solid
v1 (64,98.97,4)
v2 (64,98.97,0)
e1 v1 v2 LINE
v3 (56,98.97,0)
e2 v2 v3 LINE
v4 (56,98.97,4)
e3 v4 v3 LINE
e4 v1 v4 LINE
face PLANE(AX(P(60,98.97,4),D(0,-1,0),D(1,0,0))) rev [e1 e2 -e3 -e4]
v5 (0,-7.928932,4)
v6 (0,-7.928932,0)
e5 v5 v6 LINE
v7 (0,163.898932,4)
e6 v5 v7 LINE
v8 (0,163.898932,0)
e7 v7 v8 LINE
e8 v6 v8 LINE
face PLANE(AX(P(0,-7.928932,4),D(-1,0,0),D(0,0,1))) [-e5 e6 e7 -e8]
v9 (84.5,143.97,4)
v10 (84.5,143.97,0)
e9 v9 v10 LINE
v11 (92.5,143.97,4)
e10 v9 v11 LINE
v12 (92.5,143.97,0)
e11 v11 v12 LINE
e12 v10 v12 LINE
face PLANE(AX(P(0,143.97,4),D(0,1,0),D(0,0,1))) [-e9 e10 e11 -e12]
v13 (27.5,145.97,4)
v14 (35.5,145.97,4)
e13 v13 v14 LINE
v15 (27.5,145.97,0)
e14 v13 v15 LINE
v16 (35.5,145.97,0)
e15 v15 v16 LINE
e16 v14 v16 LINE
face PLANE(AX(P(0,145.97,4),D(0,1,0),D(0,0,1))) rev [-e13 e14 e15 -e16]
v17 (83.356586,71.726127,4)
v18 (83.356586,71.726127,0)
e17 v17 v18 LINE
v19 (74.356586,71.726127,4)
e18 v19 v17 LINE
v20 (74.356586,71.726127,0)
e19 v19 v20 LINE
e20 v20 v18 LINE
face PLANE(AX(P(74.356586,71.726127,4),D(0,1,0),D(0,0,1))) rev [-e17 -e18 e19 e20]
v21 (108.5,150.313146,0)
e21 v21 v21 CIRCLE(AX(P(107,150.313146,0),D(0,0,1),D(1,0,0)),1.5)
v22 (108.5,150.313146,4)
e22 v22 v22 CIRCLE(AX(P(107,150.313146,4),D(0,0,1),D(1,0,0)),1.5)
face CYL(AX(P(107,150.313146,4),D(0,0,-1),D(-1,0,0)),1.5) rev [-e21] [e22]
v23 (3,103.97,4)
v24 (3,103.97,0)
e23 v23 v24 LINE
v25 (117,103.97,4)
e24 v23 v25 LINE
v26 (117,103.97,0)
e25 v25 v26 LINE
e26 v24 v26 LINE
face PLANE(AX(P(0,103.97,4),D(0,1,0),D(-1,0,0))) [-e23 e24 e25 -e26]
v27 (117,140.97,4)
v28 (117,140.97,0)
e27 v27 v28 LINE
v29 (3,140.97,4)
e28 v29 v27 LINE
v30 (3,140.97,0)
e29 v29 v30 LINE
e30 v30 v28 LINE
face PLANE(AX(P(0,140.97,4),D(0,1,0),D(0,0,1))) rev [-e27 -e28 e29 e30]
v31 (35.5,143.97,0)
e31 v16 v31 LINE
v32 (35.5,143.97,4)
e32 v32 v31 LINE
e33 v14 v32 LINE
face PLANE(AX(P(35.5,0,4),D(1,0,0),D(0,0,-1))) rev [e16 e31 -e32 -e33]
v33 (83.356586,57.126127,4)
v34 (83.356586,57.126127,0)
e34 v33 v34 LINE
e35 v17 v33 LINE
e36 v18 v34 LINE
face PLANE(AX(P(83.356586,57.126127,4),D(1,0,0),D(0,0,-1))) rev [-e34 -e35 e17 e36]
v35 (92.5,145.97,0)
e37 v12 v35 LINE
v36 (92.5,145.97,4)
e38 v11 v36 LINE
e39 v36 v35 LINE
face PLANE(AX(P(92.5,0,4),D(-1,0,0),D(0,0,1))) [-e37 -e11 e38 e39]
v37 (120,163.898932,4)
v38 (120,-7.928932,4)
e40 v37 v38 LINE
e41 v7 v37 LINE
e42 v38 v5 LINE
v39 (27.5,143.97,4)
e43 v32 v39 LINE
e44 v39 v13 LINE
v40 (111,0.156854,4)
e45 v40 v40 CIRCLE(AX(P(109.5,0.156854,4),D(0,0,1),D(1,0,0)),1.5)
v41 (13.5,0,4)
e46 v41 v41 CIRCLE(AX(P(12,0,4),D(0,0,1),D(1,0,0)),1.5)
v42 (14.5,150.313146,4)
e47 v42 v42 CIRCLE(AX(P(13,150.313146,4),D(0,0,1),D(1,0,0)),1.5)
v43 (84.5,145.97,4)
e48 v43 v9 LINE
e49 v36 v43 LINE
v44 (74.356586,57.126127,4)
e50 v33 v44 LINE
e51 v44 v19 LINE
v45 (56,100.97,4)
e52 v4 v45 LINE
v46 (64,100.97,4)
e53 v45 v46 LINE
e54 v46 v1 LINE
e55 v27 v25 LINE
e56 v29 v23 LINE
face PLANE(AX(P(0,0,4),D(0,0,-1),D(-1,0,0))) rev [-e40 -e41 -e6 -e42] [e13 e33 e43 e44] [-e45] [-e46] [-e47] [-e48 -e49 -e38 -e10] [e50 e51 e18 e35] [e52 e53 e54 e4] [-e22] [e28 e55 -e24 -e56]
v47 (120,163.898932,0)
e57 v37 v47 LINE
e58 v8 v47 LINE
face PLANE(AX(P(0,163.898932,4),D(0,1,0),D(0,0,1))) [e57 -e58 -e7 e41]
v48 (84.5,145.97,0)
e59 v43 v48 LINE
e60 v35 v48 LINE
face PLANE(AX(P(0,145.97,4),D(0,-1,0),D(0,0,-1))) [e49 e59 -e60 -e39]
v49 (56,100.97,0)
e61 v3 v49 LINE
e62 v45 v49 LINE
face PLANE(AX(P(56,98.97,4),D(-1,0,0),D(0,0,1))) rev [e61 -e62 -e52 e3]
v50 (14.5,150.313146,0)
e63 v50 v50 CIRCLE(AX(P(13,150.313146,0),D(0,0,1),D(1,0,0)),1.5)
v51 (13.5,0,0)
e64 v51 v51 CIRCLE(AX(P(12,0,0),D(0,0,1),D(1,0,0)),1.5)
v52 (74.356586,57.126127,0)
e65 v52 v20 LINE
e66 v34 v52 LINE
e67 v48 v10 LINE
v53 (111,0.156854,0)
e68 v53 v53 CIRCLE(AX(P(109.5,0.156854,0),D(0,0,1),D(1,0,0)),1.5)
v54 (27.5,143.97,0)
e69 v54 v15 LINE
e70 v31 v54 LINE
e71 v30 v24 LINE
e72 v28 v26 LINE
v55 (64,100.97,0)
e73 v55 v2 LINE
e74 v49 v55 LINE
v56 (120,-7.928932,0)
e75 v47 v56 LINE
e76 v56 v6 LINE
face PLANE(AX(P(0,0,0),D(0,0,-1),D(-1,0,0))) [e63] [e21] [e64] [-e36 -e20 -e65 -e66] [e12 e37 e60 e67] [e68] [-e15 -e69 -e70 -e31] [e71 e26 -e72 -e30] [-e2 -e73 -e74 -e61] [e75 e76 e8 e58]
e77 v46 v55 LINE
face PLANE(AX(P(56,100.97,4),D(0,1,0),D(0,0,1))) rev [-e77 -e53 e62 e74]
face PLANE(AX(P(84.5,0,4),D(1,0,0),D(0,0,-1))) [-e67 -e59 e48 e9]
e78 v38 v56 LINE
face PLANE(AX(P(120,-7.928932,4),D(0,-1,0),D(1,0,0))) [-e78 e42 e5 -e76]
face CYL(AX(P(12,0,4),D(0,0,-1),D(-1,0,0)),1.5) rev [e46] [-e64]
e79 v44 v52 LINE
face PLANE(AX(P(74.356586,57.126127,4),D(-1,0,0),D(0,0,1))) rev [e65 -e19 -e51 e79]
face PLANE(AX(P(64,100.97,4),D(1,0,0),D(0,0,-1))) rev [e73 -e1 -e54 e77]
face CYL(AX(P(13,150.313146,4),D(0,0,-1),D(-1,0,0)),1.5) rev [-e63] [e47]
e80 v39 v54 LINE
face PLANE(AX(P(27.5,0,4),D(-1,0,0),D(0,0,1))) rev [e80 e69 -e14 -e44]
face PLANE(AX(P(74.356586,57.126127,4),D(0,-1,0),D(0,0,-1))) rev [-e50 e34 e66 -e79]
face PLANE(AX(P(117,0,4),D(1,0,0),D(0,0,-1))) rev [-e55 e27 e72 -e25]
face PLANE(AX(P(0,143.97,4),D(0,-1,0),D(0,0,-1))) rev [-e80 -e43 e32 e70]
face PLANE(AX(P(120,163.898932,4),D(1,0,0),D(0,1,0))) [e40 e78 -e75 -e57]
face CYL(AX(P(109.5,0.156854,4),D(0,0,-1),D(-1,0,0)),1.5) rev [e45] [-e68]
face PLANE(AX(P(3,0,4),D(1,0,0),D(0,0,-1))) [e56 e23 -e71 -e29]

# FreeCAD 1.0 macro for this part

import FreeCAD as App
import Part
import Sketcher
from FreeCAD import Vector


def add_polygon(sketch, points):
    """Adds a closed chain of lines whose ends are joined by coincident constraints."""
    first, n = sketch.GeometryCount, len(points)
    for a, b in zip(points, points[1:] + points[:1]):
        sketch.addGeometry(Part.LineSegment(App.Vector(*a, 0), App.Vector(*b, 0)), False)
    for i in range(n):
        sketch.addConstraint(Sketcher.Constraint("Coincident", first + i, 2, first + (i + 1) % n, 1))

doc = App.newDocument("Part")
body = doc.addObject("PartDesign::Body", "Body")

# Sketch on XY plane
sketch1 = body.newObject("Sketcher::SketchObject", "Sketch")
sketch1.AttachmentSupport = (doc.getObject("XY_Plane"), [""])
sketch1.MapMode = "FlatFace"
add_polygon(sketch1, [(0, 163.9), (0, -7.9), (120, -7.9), (120, 163.9)])  # lines 0-3
sketch1.addGeometry(Part.Circle(Vector(12, 0, 0), Vector(0, 0, 1), 1.5), False)  # 4
sketch1.addGeometry(Part.Circle(Vector(109.5, 0.2, 0), Vector(0, 0, 1), 1.5), False)  # 5
sketch1.addGeometry(Part.Circle(Vector(13, 150.3, 0), Vector(0, 0, 1), 1.5), False)  # 6
add_polygon(sketch1, [(35.5, 144), (27.5, 144), (27.5, 146), (35.5, 146)])  # lines 7-10
add_polygon(sketch1, [(64, 99), (56, 99), (56, 101), (64, 101)])  # lines 11-14
add_polygon(sketch1, [(117, 104), (3, 104), (3, 141), (117, 141)])  # lines 15-18
add_polygon(sketch1, [(84.5, 146), (92.5, 146), (92.5, 144), (84.5, 144)])  # lines 19-22
sketch1.addGeometry(Part.Circle(Vector(107, 150.3, 0), Vector(0, 0, 1), 1.5), False)  # 23
sketch1.addConstraint([
    Sketcher.Constraint("Vertical", 0),
    Sketcher.Constraint("Horizontal", 1),
    Sketcher.Constraint("Vertical", 2),
    Sketcher.Constraint("Horizontal", 3),
    Sketcher.Constraint("Horizontal", 7),
    Sketcher.Constraint("Vertical", 8),
    Sketcher.Constraint("Horizontal", 9),
    Sketcher.Constraint("Vertical", 10),
    Sketcher.Constraint("Horizontal", 11),
    Sketcher.Constraint("Vertical", 12),
    Sketcher.Constraint("Horizontal", 13),
    Sketcher.Constraint("Vertical", 14),
    Sketcher.Constraint("Horizontal", 15),
    Sketcher.Constraint("Vertical", 16),
    Sketcher.Constraint("Horizontal", 17),
    Sketcher.Constraint("Vertical", 18),
    Sketcher.Constraint("Horizontal", 19),
    Sketcher.Constraint("Vertical", 20),
    Sketcher.Constraint("Horizontal", 21),
    Sketcher.Constraint("Vertical", 22),
    Sketcher.Constraint("Equal", 4, 5),
    Sketcher.Constraint("Equal", 5, 6),
    Sketcher.Constraint("Equal", 6, 23),
    Sketcher.Constraint("PointOnObject", 4, 3, -1),
    Sketcher.Constraint("PointOnObject", 0, 2, -2),
    Sketcher.Constraint("Horizontal", 6, 3, 23, 3),
    Sketcher.Constraint("Horizontal", 9, 2, 19, 2),
    Sketcher.Constraint("Horizontal", 10, 2, 20, 2),
    Sketcher.Constraint("Equal", 9, 11),
    Sketcher.Constraint("Equal", 13, 19),
    Sketcher.Constraint("Equal", 10, 12),
    Sketcher.Constraint("Diameter", 4, 3.0),
    Sketcher.Constraint("DistanceX", 1, 1, 1, 2, 120.0),
    Sketcher.Constraint("DistanceX", 7, 2, 7, 1, 8.0),
    Sketcher.Constraint("DistanceX", 15, 2, 15, 1, 114.0),
    Sketcher.Constraint("DistanceY", 8, 1, 8, 2, 2.0),
    Sketcher.Constraint("DistanceY", 16, 1, 16, 2, 37.0),
    Sketcher.Constraint("DistanceX", -1, 1, 4, 3, 12.0),
    Sketcher.Constraint("DistanceX", -1, 1, 6, 3, 13.0),
    Sketcher.Constraint("DistanceX", -1, 1, 23, 3, 107.0),
    Sketcher.Constraint("DistanceX", -1, 1, 11, 2, 56.0),
    Sketcher.Constraint("DistanceX", -1, 1, 15, 2, 3.0),
    Sketcher.Constraint("DistanceY", 11, 2, 10, 2, 45.0),
    Sketcher.Constraint("DistanceY", 15, 2, 7, 2, 40.0),
    Sketcher.Constraint("DistanceX", -1, 1, 5, 3, 109.5),
    Sketcher.Constraint("DistanceX", -1, 1, 7, 2, 27.5),
    Sketcher.Constraint("DistanceX", -1, 1, 19, 2, 92.5),
    Sketcher.Constraint("DistanceY", -1, 1, 7, 2, 143.97),
    Sketcher.Constraint("DistanceY", 0, 2, 0, 1, 171.827864),
    Sketcher.Constraint("DistanceY", 5, 3, 6, 3, 150.156292),
    Sketcher.Constraint("DistanceY", -1, 1, 5, 3, 0.156854),
    Sketcher.Constraint("DistanceY", 0, 2, -1, 1, 7.928932),
])
pad1 = body.newObject("PartDesign::Pad", "Pad")
pad1.Profile = sketch1
pad1.Length = 4

# Sketch on XY plane
sketch2 = body.newObject("Sketcher::SketchObject", "Sketch001")
sketch2.AttachmentSupport = (doc.getObject("XY_Plane"), [""])
sketch2.MapMode = "FlatFace"
add_polygon(sketch2, [(83, 72), (83, 57), (74, 57), (74, 72)])  # lines 0-3
sketch2.addConstraint([
    Sketcher.Constraint("Vertical", 0),
    Sketcher.Constraint("Horizontal", 1),
    Sketcher.Constraint("Vertical", 2),
    Sketcher.Constraint("Horizontal", 3),
    Sketcher.Constraint("DistanceX", 1, 2, 1, 1, 9.0),
    Sketcher.Constraint("DistanceY", 0, 2, 0, 1, 14.6),
    Sketcher.Constraint("DistanceX", -1, 1, 0, 2, 83.356586),
    Sketcher.Constraint("DistanceY", -1, 1, 0, 2, 57.126127),
])
pocket1 = body.newObject("PartDesign::Pocket", "Pocket")
pocket1.Profile = sketch2
pocket1.Type = "ThroughAll"
pocket1.Reversed = True

doc.recompute()
